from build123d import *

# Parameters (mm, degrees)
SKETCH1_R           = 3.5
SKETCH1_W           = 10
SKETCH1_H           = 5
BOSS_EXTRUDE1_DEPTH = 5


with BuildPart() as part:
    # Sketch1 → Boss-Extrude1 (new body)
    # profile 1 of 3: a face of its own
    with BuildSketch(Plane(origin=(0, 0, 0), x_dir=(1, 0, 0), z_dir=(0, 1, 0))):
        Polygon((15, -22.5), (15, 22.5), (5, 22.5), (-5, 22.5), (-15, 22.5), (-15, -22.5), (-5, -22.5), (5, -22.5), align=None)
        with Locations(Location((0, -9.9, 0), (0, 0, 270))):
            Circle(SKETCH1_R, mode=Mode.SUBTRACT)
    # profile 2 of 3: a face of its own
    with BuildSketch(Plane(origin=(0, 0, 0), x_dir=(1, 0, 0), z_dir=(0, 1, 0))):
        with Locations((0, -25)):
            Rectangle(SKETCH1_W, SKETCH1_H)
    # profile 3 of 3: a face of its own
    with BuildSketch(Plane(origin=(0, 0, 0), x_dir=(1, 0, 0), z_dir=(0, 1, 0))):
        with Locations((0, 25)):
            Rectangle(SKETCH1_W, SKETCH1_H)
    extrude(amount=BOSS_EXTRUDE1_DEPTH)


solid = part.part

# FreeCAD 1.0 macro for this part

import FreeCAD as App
import Part
import Sketcher

V = App.Vector

doc = App.newDocument("Part")
body = doc.addObject("PartDesign::Body", "Body")

# Sketch on XZ plane
sketch1 = body.newObject("Sketcher::SketchObject", "Sketch")
sketch1.AttachmentSupport = (doc.getObject("XZ_Plane"), [""])
sketch1.MapMode = "FlatFace"
sketch1.addGeometry([
    Part.LineSegment(V(15, 22.5, 0), V(15, -22.5, 0)),  # 0
    Part.LineSegment(V(15, -22.5, 0), V(5, -22.5, 0)),  # 1
    Part.LineSegment(V(5, -22.5, 0), V(5, -27.5, 0)),  # 2
    Part.LineSegment(V(5, -27.5, 0), V(-5, -27.5, 0)),  # 3
    Part.LineSegment(V(-5, -27.5, 0), V(-5, -22.5, 0)),  # 4
    Part.LineSegment(V(-5, -22.5, 0), V(-15, -22.5, 0)),  # 5
    Part.LineSegment(V(-15, -22.5, 0), V(-15, 22.5, 0)),  # 6
    Part.LineSegment(V(-15, 22.5, 0), V(-5, 22.5, 0)),  # 7
    Part.LineSegment(V(-5, 22.5, 0), V(-5, 27.5, 0)),  # 8
    Part.LineSegment(V(-5, 27.5, 0), V(5, 27.5, 0)),  # 9
    Part.LineSegment(V(5, 27.5, 0), V(5, 22.5, 0)),  # 10
    Part.LineSegment(V(5, 22.5, 0), V(15, 22.5, 0)),  # 11
    Part.Circle(V(0, 9.9, 0), V(0, 0, 1), 3.5),  # 12
], False)
sketch1.addConstraint([
    Sketcher.Constraint("Coincident", 0, 2, 1, 1),
    Sketcher.Constraint("Coincident", 1, 2, 2, 1),
    Sketcher.Constraint("Coincident", 2, 2, 3, 1),
    Sketcher.Constraint("Coincident", 3, 2, 4, 1),
    Sketcher.Constraint("Coincident", 4, 2, 5, 1),
    Sketcher.Constraint("Coincident", 5, 2, 6, 1),
    Sketcher.Constraint("Coincident", 6, 2, 7, 1),
    Sketcher.Constraint("Coincident", 7, 2, 8, 1),
    Sketcher.Constraint("Coincident", 8, 2, 9, 1),
    Sketcher.Constraint("Coincident", 9, 2, 10, 1),
    Sketcher.Constraint("Coincident", 10, 2, 11, 1),
    Sketcher.Constraint("Coincident", 11, 2, 0, 1),
    Sketcher.Constraint("Vertical", 0),
    Sketcher.Constraint("Horizontal", 1),
    Sketcher.Constraint("Vertical", 2),
    Sketcher.Constraint("Horizontal", 3),
    Sketcher.Constraint("Vertical", 4),
    Sketcher.Constraint("Horizontal", 5),
    Sketcher.Constraint("Vertical", 6),
    Sketcher.Constraint("Horizontal", 7),
    Sketcher.Constraint("Vertical", 8),
    Sketcher.Constraint("Horizontal", 9),
    Sketcher.Constraint("Vertical", 10),
    Sketcher.Constraint("Horizontal", 11),
    Sketcher.Constraint("Symmetric", 0, 2, 6, 2, -1, 1),
    Sketcher.Constraint("Symmetric", 2, 2, 8, 2, -1, 1),
    Sketcher.Constraint("Symmetric", 4, 2, 10, 2, -1, 1),
    Sketcher.Constraint("Symmetric", 1, 2, 4, 2, -2),
    Sketcher.Constraint("PointOnObject", 12, 3, -2),
    Sketcher.Constraint("Equal", 1, 3),
    Sketcher.Constraint("Diameter", 12, 7.0),
    Sketcher.Constraint("DistanceX", 1, 2, 1, 1, 10.0),
    Sketcher.Constraint("DistanceY", 0, 2, 0, 1, 45.0),
    Sketcher.Constraint("DistanceY", 2, 2, 2, 1, 5.0),
    Sketcher.Constraint("DistanceY", -1, 1, 12, 3, 9.9),
])
pad1 = body.newObject("PartDesign::Pad", "Pad")
pad1.Profile = sketch1
pad1.Length = 5
pad1.Reversed = True

doc.recompute()
